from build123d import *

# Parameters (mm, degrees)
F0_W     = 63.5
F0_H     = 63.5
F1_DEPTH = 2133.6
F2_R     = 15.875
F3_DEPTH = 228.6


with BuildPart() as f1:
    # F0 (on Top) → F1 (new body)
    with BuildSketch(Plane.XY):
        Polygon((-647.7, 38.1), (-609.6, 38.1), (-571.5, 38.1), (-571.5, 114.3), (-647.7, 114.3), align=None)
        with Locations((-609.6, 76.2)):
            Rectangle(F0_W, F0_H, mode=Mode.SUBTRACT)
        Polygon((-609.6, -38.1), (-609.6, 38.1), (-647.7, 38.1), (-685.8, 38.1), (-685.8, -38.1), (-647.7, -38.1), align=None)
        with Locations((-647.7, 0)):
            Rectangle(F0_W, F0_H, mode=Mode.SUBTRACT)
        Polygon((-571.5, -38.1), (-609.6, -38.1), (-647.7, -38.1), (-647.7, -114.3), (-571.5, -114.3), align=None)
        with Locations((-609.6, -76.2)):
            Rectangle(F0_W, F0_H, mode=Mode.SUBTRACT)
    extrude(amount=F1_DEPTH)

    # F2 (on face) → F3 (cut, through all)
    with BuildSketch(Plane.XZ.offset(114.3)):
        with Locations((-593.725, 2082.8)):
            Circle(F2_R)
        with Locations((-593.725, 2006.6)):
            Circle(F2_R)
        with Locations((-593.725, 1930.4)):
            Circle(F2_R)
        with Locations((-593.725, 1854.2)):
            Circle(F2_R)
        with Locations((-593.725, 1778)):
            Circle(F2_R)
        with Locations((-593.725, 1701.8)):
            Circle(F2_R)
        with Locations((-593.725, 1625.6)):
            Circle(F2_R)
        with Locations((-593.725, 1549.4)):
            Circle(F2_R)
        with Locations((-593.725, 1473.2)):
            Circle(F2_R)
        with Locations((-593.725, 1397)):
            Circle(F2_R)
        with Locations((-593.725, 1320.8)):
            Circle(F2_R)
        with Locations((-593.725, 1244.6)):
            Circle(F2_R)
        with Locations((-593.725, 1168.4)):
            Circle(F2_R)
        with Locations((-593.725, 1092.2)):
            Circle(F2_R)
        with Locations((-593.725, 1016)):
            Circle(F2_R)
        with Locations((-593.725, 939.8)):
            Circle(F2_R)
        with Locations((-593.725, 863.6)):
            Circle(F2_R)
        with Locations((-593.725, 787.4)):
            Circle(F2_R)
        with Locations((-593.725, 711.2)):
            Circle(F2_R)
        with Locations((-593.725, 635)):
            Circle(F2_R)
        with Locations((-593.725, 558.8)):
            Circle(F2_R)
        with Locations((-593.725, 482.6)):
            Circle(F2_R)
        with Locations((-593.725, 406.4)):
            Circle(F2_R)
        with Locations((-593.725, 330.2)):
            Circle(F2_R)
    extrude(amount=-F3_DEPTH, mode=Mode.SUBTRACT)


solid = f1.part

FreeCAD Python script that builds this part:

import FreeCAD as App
import Part
import Sketcher
Q = App.Units.Quantity


def add_polygon(sketch, points):
    """Adds a closed chain of lines whose ends are joined by coincident constraints."""
    first, n = sketch.GeometryCount, len(points)
    for a, b in zip(points, points[1:] + points[:1]):
        sketch.addGeometry(Part.LineSegment(App.Vector(*a, 0), App.Vector(*b, 0)), False)
    for i in range(n):
        sketch.addConstraint(Sketcher.Constraint("Coincident", first + i, 2, first + (i + 1) % n, 1))

doc = App.newDocument("Part")
params = doc.addObject("Spreadsheet::Sheet", "Params")
for row, (alias, value) in enumerate([
    ("sketch1_width", "3 in"),
    ("sketch1_width2", "1.5 in"),
    ("sketch1_width3", "2.5 in"),
    ("pad1_length", "84 in"),
    ("sketch2_diameter", "1.25 in"),
], start=1):
    params.set(f"A{row}", alias)
    params.set(f"B{row}", "=" + value)
    params.setAlias(f"B{row}", alias)

body = doc.addObject("PartDesign::Body", "Body")

sketch1 = body.newObject("Sketcher::SketchObject", "Sketch")
sketch1.AttachmentSupport = (doc.getObject("XY_Plane"), [""])
sketch1.MapMode = "FlatFace"
add_polygon(sketch1, [(-610, 38), (-572, 38), (-572, 114), (-648, 114), (-648, 38), (-686, 38), (-686, -38), (-648, -38), (-648, -114), (-572, -114), (-572, -38), (-610, -38)])
add_polygon(sketch1, [(-578, -108), (-641, -108), (-641, -44), (-578, -44)])
add_polygon(sketch1, [(-616, -32), (-679, -32), (-679, 32), (-616, 32)])
add_polygon(sketch1, [(-578, 44), (-641, 44), (-641, 108), (-578, 108)])
sketch1.addConstraint(Sketcher.Constraint("Horizontal", 0))
sketch1.addConstraint(Sketcher.Constraint("Vertical", 1))
sketch1.addConstraint(Sketcher.Constraint("Horizontal", 2))
sketch1.addConstraint(Sketcher.Constraint("Vertical", 3))
sketch1.addConstraint(Sketcher.Constraint("Horizontal", 4))
sketch1.addConstraint(Sketcher.Constraint("Vertical", 5))
sketch1.addConstraint(Sketcher.Constraint("Horizontal", 6))
sketch1.addConstraint(Sketcher.Constraint("Vertical", 7))
sketch1.addConstraint(Sketcher.Constraint("Horizontal", 8))
sketch1.addConstraint(Sketcher.Constraint("Vertical", 9))
sketch1.addConstraint(Sketcher.Constraint("Horizontal", 10))
sketch1.addConstraint(Sketcher.Constraint("Vertical", 11))
sketch1.addConstraint(Sketcher.Constraint("Horizontal", 12))
sketch1.addConstraint(Sketcher.Constraint("Vertical", 13))
sketch1.addConstraint(Sketcher.Constraint("Horizontal", 14))
sketch1.addConstraint(Sketcher.Constraint("Vertical", 15))
sketch1.addConstraint(Sketcher.Constraint("Horizontal", 16))
sketch1.addConstraint(Sketcher.Constraint("Vertical", 17))
sketch1.addConstraint(Sketcher.Constraint("Horizontal", 18))
sketch1.addConstraint(Sketcher.Constraint("Vertical", 19))
sketch1.addConstraint(Sketcher.Constraint("Horizontal", 20))
sketch1.addConstraint(Sketcher.Constraint("Vertical", 21))
sketch1.addConstraint(Sketcher.Constraint("Horizontal", 22))
sketch1.addConstraint(Sketcher.Constraint("Vertical", 23))
sketch1.addConstraint(Sketcher.Constraint("Symmetric", 3, 2, 6, 2, -1))
sketch1.addConstraint(Sketcher.Constraint("Symmetric", 1, 2, 8, 2, -1))
sketch1.addConstraint(Sketcher.Constraint("Symmetric", 13, 2, 20, 2, -1))
sketch1.addConstraint(Sketcher.Constraint("Symmetric", 15, 2, 22, 2, -1))
sketch1.addConstraint(Sketcher.Constraint("Horizontal", 0, 2, 3, 2))
sketch1.addConstraint(Sketcher.Constraint("Horizontal", 6, 2, 9, 2))
sketch1.addConstraint(Sketcher.Constraint("Equal", 0, 4))
sketch1.addConstraint(Sketcher.Constraint("Equal", 14, 16))
sketch1.addConstraint(Sketcher.Constraint("Equal", 8, 1))
sketch1.addConstraint(Sketcher.Constraint("Equal", 3, 5))
sketch1.addConstraint(Sketcher.Constraint("Equal", 22, 13))
sketch1.addConstraint(Sketcher.Constraint("Equal", 15, 17))
sketch1.addConstraint(Sketcher.Constraint("DistanceX", 2, 2, 2, 1, Q("3 in")))
sketch1.addConstraint(Sketcher.Constraint("DistanceX", 0, 1, 0, 2, Q("1.5 in")))
sketch1.addConstraint(Sketcher.Constraint("DistanceX", 12, 2, 12, 1, Q("2.5 in")))
sketch1.addConstraint(Sketcher.Constraint("DistanceX", 4, 2, -1, 1, Q("27 in")))
sketch1.addConstraint(Sketcher.Constraint("DistanceX", 13, 2, 19, 2, Q("1 in")))
sketch1.addConstraint(Sketcher.Constraint("DistanceY", 13, 2, 16, 2, Q("0.5 in")))
sketch1.addConstraint(Sketcher.Constraint("DistanceY", 18, 2, 20, 2, Q("0.5 in")))
sketch1.addConstraint(Sketcher.Constraint("DistanceX", 12, 2, -1, 1, Q("25.25 in")))
sketch1.setExpression("Constraints[60]", "Params.sketch1_width")
sketch1.setExpression("Constraints[61]", "Params.sketch1_width2")
sketch1.setExpression("Constraints[62]", "Params.sketch1_width3")
pad1 = body.newObject("PartDesign::Pad", "Pad")
pad1.Profile = sketch1
pad1.setExpression("Length", "Params.pad1_length")

sketch2 = body.newObject("Sketcher::SketchObject", "Sketch001")
sketch2.AttachmentSupport = (doc.getObject("XZ_Plane"), [""])
sketch2.MapMode = "FlatFace"
sketch2.AttachmentOffset = App.Placement(App.Vector(0, 0, 4.5 * 25.4), App.Rotation())
sketch2.addGeometry(Part.Circle(App.Vector(-594, 2083, 0), App.Vector(0, 0, 1), 16), False)
sketch2.addGeometry(Part.Circle(App.Vector(-594, 2007, 0), App.Vector(0, 0, 1), 16), False)
sketch2.addGeometry(Part.Circle(App.Vector(-594, 1930, 0), App.Vector(0, 0, 1), 16), False)
sketch2.addGeometry(Part.Circle(App.Vector(-594, 1854, 0), App.Vector(0, 0, 1), 16), False)
sketch2.addGeometry(Part.Circle(App.Vector(-594, 1778, 0), App.Vector(0, 0, 1), 16), False)
sketch2.addGeometry(Part.Circle(App.Vector(-594, 1702, 0), App.Vector(0, 0, 1), 16), False)
sketch2.addGeometry(Part.Circle(App.Vector(-594, 1626, 0), App.Vector(0, 0, 1), 16), False)
sketch2.addGeometry(Part.Circle(App.Vector(-594, 1549, 0), App.Vector(0, 0, 1), 16), False)
sketch2.addGeometry(Part.Circle(App.Vector(-594, 1473, 0), App.Vector(0, 0, 1), 16), False)
sketch2.addGeometry(Part.Circle(App.Vector(-594, 1397, 0), App.Vector(0, 0, 1), 16), False)
sketch2.addGeometry(Part.Circle(App.Vector(-594, 1321, 0), App.Vector(0, 0, 1), 16), False)
sketch2.addGeometry(Part.Circle(App.Vector(-594, 1245, 0), App.Vector(0, 0, 1), 16), False)
sketch2.addGeometry(Part.Circle(App.Vector(-594, 1168, 0), App.Vector(0, 0, 1), 16), False)
sketch2.addGeometry(Part.Circle(App.Vector(-594, 1092, 0), App.Vector(0, 0, 1), 16), False)
sketch2.addGeometry(Part.Circle(App.Vector(-594, 1016, 0), App.Vector(0, 0, 1), 16), False)
sketch2.addGeometry(Part.Circle(App.Vector(-594, 940, 0), App.Vector(0, 0, 1), 16), False)
sketch2.addGeometry(Part.Circle(App.Vector(-594, 864, 0), App.Vector(0, 0, 1), 16), False)
sketch2.addGeometry(Part.Circle(App.Vector(-594, 787, 0), App.Vector(0, 0, 1), 16), False)
sketch2.addGeometry(Part.Circle(App.Vector(-594, 711, 0), App.Vector(0, 0, 1), 16), False)
sketch2.addGeometry(Part.Circle(App.Vector(-594, 635, 0), App.Vector(0, 0, 1), 16), False)
sketch2.addGeometry(Part.Circle(App.Vector(-594, 559, 0), App.Vector(0, 0, 1), 16), False)
sketch2.addGeometry(Part.Circle(App.Vector(-594, 483, 0), App.Vector(0, 0, 1), 16), False)
sketch2.addGeometry(Part.Circle(App.Vector(-594, 406, 0), App.Vector(0, 0, 1), 16), False)
sketch2.addGeometry(Part.Circle(App.Vector(-594, 330, 0), App.Vector(0, 0, 1), 16), False)
sketch2.addConstraint(Sketcher.Constraint("Equal", 0, 1))
sketch2.addConstraint(Sketcher.Constraint("Equal", 1, 2))
sketch2.addConstraint(Sketcher.Constraint("Equal", 2, 3))
sketch2.addConstraint(Sketcher.Constraint("Equal", 3, 4))
sketch2.addConstraint(Sketcher.Constraint("Equal", 4, 5))
sketch2.addConstraint(Sketcher.Constraint("Equal", 5, 6))
sketch2.addConstraint(Sketcher.Constraint("Equal", 6, 7))
sketch2.addConstraint(Sketcher.Constraint("Equal", 7, 8))
sketch2.addConstraint(Sketcher.Constraint("Equal", 8, 9))
sketch2.addConstraint(Sketcher.Constraint("Equal", 9, 10))
sketch2.addConstraint(Sketcher.Constraint("Equal", 10, 11))
sketch2.addConstraint(Sketcher.Constraint("Equal", 11, 12))
sketch2.addConstraint(Sketcher.Constraint("Equal", 12, 13))
sketch2.addConstraint(Sketcher.Constraint("Equal", 13, 14))
sketch2.addConstraint(Sketcher.Constraint("Equal", 14, 15))
sketch2.addConstraint(Sketcher.Constraint("Equal", 15, 16))
sketch2.addConstraint(Sketcher.Constraint("Equal", 16, 17))
sketch2.addConstraint(Sketcher.Constraint("Equal", 17, 18))
sketch2.addConstraint(Sketcher.Constraint("Equal", 18, 19))
sketch2.addConstraint(Sketcher.Constraint("Equal", 19, 20))
sketch2.addConstraint(Sketcher.Constraint("Equal", 20, 21))
sketch2.addConstraint(Sketcher.Constraint("Equal", 21, 22))
sketch2.addConstraint(Sketcher.Constraint("Equal", 22, 23))
sketch2.addConstraint(Sketcher.Constraint("Vertical", 0, 3, 1, 3))
sketch2.addConstraint(Sketcher.Constraint("Vertical", 1, 3, 2, 3))
sketch2.addConstraint(Sketcher.Constraint("Vertical", 2, 3, 3, 3))
sketch2.addConstraint(Sketcher.Constraint("Vertical", 3, 3, 4, 3))
sketch2.addConstraint(Sketcher.Constraint("Vertical", 4, 3, 5, 3))
sketch2.addConstraint(Sketcher.Constraint("Vertical", 5, 3, 6, 3))
sketch2.addConstraint(Sketcher.Constraint("Vertical", 6, 3, 7, 3))
sketch2.addConstraint(Sketcher.Constraint("Vertical", 7, 3, 8, 3))
sketch2.addConstraint(Sketcher.Constraint("Vertical", 8, 3, 9, 3))
sketch2.addConstraint(Sketcher.Constraint("Vertical", 9, 3, 10, 3))
sketch2.addConstraint(Sketcher.Constraint("Vertical", 10, 3, 11, 3))
sketch2.addConstraint(Sketcher.Constraint("Vertical", 11, 3, 12, 3))
sketch2.addConstraint(Sketcher.Constraint("Vertical", 12, 3, 13, 3))
sketch2.addConstraint(Sketcher.Constraint("Vertical", 13, 3, 14, 3))
sketch2.addConstraint(Sketcher.Constraint("Vertical", 14, 3, 15, 3))
sketch2.addConstraint(Sketcher.Constraint("Vertical", 15, 3, 16, 3))
sketch2.addConstraint(Sketcher.Constraint("Vertical", 16, 3, 17, 3))
sketch2.addConstraint(Sketcher.Constraint("Vertical", 17, 3, 18, 3))
sketch2.addConstraint(Sketcher.Constraint("Vertical", 18, 3, 19, 3))
sketch2.addConstraint(Sketcher.Constraint("Vertical", 19, 3, 20, 3))
sketch2.addConstraint(Sketcher.Constraint("Vertical", 20, 3, 21, 3))
sketch2.addConstraint(Sketcher.Constraint("Vertical", 21, 3, 22, 3))
sketch2.addConstraint(Sketcher.Constraint("Vertical", 22, 3, 23, 3))
sketch2.addConstraint(Sketcher.Constraint("Diameter", 0, Q("1.25 in")))
sketch2.addConstraint(Sketcher.Constraint("DistanceY", -1, 1, 0, 3, Q("82 in")))
sketch2.addConstraint(Sketcher.Constraint("DistanceY", -1, 1, 1, 3, Q("79 in")))
sketch2.addConstraint(Sketcher.Constraint("DistanceY", -1, 1, 2, 3, Q("76 in")))
sketch2.addConstraint(Sketcher.Constraint("DistanceY", -1, 1, 3, 3, Q("73 in")))
sketch2.addConstraint(Sketcher.Constraint("DistanceY", -1, 1, 4, 3, Q("70 in")))
sketch2.addConstraint(Sketcher.Constraint("DistanceY", -1, 1, 5, 3, Q("67 in")))
sketch2.addConstraint(Sketcher.Constraint("DistanceY", -1, 1, 6, 3, Q("64 in")))
sketch2.addConstraint(Sketcher.Constraint("DistanceY", -1, 1, 7, 3, Q("61 in")))
sketch2.addConstraint(Sketcher.Constraint("DistanceY", -1, 1, 8, 3, Q("58 in")))
sketch2.addConstraint(Sketcher.Constraint("DistanceY", -1, 1, 9, 3, Q("55 in")))
sketch2.addConstraint(Sketcher.Constraint("DistanceY", -1, 1, 10, 3, Q("52 in")))
sketch2.addConstraint(Sketcher.Constraint("DistanceY", -1, 1, 11, 3, Q("49 in")))
sketch2.addConstraint(Sketcher.Constraint("DistanceY", -1, 1, 12, 3, Q("46 in")))
sketch2.addConstraint(Sketcher.Constraint("DistanceY", -1, 1, 13, 3, Q("43 in")))
sketch2.addConstraint(Sketcher.Constraint("DistanceY", -1, 1, 14, 3, Q("40 in")))
sketch2.addConstraint(Sketcher.Constraint("DistanceY", -1, 1, 15, 3, Q("37 in")))
sketch2.addConstraint(Sketcher.Constraint("DistanceY", -1, 1, 16, 3, Q("34 in")))
sketch2.addConstraint(Sketcher.Constraint("DistanceY", -1, 1, 17, 3, Q("31 in")))
sketch2.addConstraint(Sketcher.Constraint("DistanceY", -1, 1, 18, 3, Q("28 in")))
sketch2.addConstraint(Sketcher.Constraint("DistanceY", -1, 1, 19, 3, Q("25 in")))
sketch2.addConstraint(Sketcher.Constraint("DistanceY", -1, 1, 20, 3, Q("22 in")))
sketch2.addConstraint(Sketcher.Constraint("DistanceY", -1, 1, 21, 3, Q("19 in")))
sketch2.addConstraint(Sketcher.Constraint("DistanceY", -1, 1, 22, 3, Q("16 in")))
sketch2.addConstraint(Sketcher.Constraint("DistanceY", -1, 1, 23, 3, Q("13 in")))
sketch2.addConstraint(Sketcher.Constraint("DistanceX", 0, 3, -1, 1, Q("23.375 in")))
sketch2.setExpression("Constraints[46]", "Params.sketch2_diameter")
pocket1 = body.newObject("PartDesign::Pocket", "Pocket")
pocket1.Profile = sketch2
pocket1.Type = "ThroughAll"

doc.recompute()
